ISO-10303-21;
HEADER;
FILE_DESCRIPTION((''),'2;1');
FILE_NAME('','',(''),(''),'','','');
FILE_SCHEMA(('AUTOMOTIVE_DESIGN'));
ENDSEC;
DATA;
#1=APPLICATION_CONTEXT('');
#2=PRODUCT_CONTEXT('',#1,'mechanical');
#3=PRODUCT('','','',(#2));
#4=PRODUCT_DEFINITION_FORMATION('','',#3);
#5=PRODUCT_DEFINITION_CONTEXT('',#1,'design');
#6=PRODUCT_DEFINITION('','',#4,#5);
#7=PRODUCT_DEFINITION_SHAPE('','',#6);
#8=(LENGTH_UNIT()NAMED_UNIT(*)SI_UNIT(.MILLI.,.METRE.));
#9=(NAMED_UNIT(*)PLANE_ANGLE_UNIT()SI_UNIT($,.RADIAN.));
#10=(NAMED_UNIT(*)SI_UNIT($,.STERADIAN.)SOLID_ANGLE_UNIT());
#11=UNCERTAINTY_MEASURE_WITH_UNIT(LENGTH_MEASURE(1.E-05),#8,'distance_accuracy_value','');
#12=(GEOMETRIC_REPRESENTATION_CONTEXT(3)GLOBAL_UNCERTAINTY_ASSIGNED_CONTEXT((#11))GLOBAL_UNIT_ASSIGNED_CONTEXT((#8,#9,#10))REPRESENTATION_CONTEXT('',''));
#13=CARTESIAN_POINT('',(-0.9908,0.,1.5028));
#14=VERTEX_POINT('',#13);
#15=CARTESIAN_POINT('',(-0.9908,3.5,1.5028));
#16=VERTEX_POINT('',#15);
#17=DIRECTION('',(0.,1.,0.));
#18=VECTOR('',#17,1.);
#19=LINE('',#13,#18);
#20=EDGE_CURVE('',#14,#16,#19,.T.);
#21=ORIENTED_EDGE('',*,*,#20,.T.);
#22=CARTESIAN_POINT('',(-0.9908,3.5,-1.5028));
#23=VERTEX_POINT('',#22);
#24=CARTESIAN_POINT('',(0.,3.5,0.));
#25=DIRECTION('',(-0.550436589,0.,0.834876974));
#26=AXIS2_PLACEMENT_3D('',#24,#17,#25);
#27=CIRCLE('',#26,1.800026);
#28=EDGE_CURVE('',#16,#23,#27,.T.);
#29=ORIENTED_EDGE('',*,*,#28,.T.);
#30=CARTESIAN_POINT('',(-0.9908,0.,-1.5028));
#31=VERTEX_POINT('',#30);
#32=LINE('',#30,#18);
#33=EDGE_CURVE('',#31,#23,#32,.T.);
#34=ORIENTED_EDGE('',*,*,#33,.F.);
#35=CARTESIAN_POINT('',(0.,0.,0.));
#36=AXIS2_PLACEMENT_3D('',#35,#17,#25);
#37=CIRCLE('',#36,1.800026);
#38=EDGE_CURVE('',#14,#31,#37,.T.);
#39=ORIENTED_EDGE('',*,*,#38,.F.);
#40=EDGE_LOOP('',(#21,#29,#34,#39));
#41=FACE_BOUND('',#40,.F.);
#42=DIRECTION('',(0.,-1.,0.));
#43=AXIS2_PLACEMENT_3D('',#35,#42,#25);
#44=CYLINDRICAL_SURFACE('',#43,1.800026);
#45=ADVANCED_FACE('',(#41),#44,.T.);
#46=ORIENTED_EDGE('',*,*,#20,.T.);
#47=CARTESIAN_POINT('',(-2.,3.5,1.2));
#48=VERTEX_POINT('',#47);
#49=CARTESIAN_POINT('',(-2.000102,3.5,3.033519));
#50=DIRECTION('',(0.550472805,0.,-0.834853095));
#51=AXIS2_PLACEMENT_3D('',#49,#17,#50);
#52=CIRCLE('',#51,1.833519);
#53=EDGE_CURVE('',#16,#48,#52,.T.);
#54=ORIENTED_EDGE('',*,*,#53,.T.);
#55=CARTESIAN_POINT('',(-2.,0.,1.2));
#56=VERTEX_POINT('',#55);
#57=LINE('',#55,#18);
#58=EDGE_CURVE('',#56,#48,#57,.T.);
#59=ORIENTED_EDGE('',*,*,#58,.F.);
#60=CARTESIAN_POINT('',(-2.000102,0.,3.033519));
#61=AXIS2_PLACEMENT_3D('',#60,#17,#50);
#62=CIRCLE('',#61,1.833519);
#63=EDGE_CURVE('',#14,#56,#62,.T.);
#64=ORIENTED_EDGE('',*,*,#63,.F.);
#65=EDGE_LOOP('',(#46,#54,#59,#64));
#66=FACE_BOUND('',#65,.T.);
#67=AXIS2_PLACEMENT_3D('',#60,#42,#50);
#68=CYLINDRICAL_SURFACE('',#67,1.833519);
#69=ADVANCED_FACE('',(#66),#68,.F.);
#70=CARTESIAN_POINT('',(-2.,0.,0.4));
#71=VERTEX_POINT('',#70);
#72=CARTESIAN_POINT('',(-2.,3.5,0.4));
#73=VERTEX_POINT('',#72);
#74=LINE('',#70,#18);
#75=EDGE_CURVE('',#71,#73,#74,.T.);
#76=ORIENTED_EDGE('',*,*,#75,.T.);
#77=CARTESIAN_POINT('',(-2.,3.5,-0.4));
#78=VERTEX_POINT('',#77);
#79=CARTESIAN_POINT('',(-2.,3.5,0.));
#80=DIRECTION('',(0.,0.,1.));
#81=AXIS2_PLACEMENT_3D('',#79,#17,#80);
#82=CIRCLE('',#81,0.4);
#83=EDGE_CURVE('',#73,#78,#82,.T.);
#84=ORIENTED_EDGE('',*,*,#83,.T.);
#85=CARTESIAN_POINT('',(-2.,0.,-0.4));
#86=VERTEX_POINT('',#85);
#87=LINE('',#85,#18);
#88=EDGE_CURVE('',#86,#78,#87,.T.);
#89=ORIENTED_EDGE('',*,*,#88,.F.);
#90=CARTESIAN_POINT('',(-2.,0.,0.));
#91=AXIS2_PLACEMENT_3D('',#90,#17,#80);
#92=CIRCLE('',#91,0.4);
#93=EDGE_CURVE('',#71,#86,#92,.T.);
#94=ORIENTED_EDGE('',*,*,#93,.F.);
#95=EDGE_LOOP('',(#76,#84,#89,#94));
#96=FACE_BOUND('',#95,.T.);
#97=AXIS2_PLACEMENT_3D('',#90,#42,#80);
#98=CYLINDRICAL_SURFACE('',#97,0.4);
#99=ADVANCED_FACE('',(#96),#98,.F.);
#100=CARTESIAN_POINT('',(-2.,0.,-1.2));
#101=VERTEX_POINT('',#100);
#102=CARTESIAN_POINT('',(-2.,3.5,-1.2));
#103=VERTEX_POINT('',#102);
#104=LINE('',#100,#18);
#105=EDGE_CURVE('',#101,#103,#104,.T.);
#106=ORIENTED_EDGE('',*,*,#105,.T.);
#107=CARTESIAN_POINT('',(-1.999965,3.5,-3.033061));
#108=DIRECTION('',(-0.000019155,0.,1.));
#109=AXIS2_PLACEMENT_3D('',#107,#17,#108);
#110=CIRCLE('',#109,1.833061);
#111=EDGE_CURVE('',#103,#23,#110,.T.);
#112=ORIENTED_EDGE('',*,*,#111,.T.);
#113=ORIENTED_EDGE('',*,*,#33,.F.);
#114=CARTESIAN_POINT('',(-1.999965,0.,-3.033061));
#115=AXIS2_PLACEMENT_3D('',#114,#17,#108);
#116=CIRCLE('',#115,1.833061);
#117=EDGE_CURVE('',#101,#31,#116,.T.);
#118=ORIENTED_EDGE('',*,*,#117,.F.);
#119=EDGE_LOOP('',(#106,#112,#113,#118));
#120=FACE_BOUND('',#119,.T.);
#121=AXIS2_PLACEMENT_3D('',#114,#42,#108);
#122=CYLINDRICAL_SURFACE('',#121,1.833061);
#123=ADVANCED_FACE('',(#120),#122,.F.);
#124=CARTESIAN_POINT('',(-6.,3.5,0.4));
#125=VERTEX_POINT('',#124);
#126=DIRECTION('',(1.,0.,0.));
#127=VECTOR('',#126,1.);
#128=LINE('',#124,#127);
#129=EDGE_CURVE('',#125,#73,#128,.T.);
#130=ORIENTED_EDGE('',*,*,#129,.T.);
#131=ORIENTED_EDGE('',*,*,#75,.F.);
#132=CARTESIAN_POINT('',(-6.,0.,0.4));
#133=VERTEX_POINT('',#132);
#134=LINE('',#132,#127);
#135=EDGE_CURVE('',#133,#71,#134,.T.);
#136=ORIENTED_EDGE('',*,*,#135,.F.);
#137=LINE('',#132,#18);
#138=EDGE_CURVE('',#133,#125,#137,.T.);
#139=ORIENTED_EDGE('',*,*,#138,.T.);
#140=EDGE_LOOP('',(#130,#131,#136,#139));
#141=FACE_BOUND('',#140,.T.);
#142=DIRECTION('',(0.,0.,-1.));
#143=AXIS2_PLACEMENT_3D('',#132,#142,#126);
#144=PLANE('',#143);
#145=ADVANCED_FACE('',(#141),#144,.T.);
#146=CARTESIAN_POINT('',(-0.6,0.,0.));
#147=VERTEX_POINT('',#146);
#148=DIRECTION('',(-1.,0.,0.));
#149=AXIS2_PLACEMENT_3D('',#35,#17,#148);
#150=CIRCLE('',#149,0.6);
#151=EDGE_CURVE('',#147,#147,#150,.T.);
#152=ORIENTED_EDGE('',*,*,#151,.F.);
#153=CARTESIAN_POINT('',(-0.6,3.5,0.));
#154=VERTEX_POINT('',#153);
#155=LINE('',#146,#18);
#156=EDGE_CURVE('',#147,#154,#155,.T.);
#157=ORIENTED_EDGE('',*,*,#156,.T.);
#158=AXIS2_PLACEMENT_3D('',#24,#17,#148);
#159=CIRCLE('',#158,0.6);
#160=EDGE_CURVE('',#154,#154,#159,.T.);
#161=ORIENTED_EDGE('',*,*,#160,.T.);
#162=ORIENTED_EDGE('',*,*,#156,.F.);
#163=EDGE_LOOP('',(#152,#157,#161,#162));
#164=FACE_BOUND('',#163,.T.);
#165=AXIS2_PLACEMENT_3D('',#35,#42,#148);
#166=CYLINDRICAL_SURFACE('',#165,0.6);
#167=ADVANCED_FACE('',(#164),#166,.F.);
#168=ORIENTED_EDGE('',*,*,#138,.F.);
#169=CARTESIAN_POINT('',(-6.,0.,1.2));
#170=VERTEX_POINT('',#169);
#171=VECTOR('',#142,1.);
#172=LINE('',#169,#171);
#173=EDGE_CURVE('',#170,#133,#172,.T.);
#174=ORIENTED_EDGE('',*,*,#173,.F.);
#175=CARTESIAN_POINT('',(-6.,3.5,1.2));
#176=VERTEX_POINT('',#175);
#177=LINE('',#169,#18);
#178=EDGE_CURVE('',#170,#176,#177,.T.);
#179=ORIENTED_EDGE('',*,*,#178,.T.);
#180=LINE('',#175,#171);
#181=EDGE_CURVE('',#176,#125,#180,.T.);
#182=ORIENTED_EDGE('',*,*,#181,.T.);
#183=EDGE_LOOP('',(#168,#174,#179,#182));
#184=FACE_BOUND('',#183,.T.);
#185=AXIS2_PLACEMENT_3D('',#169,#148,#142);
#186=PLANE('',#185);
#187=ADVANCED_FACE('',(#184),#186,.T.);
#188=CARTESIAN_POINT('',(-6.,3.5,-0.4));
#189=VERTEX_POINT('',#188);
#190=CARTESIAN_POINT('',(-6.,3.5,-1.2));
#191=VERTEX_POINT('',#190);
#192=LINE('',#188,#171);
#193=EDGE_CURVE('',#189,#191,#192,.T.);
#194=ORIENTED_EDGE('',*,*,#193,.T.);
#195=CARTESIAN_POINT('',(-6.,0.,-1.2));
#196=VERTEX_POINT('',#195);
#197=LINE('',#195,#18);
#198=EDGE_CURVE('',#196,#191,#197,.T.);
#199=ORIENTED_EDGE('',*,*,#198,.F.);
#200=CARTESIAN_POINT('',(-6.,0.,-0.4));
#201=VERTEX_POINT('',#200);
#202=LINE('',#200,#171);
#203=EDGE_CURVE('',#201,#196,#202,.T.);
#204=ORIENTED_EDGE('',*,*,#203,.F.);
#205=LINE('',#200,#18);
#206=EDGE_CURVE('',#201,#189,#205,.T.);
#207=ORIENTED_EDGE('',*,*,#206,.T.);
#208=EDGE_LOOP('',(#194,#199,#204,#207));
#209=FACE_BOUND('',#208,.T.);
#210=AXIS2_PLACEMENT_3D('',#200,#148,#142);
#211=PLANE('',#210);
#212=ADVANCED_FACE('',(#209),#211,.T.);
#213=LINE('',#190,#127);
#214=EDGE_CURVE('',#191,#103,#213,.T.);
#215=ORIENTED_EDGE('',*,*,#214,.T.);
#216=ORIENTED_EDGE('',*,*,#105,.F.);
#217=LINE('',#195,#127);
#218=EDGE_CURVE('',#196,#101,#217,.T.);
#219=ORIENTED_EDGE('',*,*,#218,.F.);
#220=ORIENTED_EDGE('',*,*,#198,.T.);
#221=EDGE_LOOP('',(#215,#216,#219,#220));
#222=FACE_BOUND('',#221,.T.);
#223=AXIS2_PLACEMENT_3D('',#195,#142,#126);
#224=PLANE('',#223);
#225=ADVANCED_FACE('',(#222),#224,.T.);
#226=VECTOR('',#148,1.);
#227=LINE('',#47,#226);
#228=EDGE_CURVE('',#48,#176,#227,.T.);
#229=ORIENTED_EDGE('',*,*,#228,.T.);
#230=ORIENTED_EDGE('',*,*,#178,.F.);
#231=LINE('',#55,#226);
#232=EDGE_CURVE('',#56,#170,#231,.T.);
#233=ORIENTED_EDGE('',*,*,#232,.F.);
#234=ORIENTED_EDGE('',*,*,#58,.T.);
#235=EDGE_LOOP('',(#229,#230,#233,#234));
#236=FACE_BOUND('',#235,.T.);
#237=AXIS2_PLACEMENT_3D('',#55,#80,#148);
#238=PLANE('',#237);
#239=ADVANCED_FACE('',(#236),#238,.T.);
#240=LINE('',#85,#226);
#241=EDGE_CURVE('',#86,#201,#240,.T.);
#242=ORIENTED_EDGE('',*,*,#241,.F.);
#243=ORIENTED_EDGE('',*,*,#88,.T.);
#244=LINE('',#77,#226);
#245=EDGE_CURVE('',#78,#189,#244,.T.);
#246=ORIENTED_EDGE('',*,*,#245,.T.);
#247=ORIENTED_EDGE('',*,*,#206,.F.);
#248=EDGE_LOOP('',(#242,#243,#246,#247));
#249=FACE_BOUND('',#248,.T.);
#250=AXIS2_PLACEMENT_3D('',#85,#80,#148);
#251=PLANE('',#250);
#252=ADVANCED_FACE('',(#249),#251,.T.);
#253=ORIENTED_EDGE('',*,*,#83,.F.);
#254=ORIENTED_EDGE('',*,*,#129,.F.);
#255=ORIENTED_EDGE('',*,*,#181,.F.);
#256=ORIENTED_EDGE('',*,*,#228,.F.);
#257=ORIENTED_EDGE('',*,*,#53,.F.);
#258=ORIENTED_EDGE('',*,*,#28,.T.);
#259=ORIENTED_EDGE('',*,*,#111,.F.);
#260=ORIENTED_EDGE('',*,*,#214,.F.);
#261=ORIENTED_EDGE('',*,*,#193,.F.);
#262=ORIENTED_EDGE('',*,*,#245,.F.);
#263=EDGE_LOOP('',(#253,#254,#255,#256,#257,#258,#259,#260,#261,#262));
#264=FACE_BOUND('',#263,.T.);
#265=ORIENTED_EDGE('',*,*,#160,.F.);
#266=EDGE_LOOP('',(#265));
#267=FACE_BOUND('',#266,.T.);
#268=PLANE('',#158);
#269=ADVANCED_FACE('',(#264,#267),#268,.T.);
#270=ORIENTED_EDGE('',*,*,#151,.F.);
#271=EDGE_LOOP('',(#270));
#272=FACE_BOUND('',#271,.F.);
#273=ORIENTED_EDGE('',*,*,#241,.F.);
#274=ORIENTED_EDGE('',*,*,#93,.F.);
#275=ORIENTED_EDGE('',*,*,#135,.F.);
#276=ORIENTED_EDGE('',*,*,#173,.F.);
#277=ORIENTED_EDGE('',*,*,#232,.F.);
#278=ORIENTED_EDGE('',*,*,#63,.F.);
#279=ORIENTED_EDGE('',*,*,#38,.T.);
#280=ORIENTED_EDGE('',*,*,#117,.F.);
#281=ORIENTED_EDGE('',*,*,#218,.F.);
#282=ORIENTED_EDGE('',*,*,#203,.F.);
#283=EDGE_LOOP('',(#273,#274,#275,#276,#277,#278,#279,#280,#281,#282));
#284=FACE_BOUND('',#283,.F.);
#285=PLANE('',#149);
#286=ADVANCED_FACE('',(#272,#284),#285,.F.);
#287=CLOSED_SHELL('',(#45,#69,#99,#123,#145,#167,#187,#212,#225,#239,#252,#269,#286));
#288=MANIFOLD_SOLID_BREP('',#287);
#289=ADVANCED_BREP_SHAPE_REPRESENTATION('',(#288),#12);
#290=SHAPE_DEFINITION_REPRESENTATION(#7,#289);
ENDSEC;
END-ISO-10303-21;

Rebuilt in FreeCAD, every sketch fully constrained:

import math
import FreeCAD as App
import Part
import Sketcher
from FreeCAD import Vector
Q = App.Units.Quantity

doc = App.newDocument("Part")
body = doc.addObject("PartDesign::Body", "Body")

# Sketch on XZ plane
sketch1 = body.newObject("Sketcher::SketchObject", "Sketch")
sketch1.AttachmentSupport = (doc.getObject("XZ_Plane"), [""])
sketch1.MapMode = "FlatFace"
sketch1.addGeometry([
    Part.ArcOfCircle(Part.Circle(Vector(-2, 3.03, 0), Vector(0, 0, 1), 1.83), math.radians(-90), math.radians(-57)),  # 0
    Part.ArcOfCircle(Part.Circle(Vector(0, 0, 0), Vector(0, 0, 1), 1.8), math.radians(-123), math.radians(123)),  # 1
    Part.ArcOfCircle(Part.Circle(Vector(-2, -3.03, 0), Vector(0, 0, 1), 1.83), math.radians(57), math.radians(90)),  # 2
    Part.LineSegment(Vector(-2, -1.2, 0), Vector(-6, -1.2, 0)),  # 3
    Part.LineSegment(Vector(-6, -1.2, 0), Vector(-6, -0.4, 0)),  # 4
    Part.LineSegment(Vector(-6, -0.4, 0), Vector(-2, -0.4, 0)),  # 5
    Part.ArcOfCircle(Part.Circle(Vector(-2, 0, 0), Vector(0, 0, 1), 0.4), math.radians(-90), math.radians(90)),  # 6
    Part.LineSegment(Vector(-2, 0.4, 0), Vector(-6, 0.4, 0)),  # 7
    Part.LineSegment(Vector(-6, 0.4, 0), Vector(-6, 1.2, 0)),  # 8
    Part.LineSegment(Vector(-6, 1.2, 0), Vector(-2, 1.2, 0)),  # 9
    Part.Circle(Vector(0, 0, 0), Vector(0, 0, 1), 0.6),  # 10
], False)
sketch1.addConstraint([
    Sketcher.Constraint("Tangent", 0, 2, 1, 2),
    Sketcher.Constraint("Tangent", 1, 1, 2, 1),
    Sketcher.Constraint("Tangent", 2, 2, 3, 1),
    Sketcher.Constraint("Coincident", 3, 2, 4, 1),
    Sketcher.Constraint("Coincident", 4, 2, 5, 1),
    Sketcher.Constraint("Tangent", 5, 2, 6, 1),
    Sketcher.Constraint("Tangent", 6, 2, 7, 1),
    Sketcher.Constraint("Coincident", 7, 2, 8, 1),
    Sketcher.Constraint("Coincident", 8, 2, 9, 1),
    Sketcher.Constraint("Tangent", 9, 2, 0, 1),
    Sketcher.Constraint("Horizontal", 3),
    Sketcher.Constraint("Vertical", 4),
    Sketcher.Constraint("Horizontal", 5),
    Sketcher.Constraint("Horizontal", 7),
    Sketcher.Constraint("Vertical", 8),
    Sketcher.Constraint("Horizontal", 9),
    Sketcher.Constraint("Coincident", 1, 3, -1, 1),
    Sketcher.Constraint("Coincident", 10, 3, -1, 1),
    Sketcher.Constraint("Equal", 0, 2),
    Sketcher.Constraint("Symmetric", 4, 2, 7, 2, -1),
    Sketcher.Constraint("Vertical", 0, 3, 2, 3),
    Sketcher.Constraint("Vertical", 2, 3, 6, 3),
    Sketcher.Constraint("Diameter", 10, Q("1.2 mm")),
    Sketcher.Constraint("Radius", 6, Q("0.4 mm")),
    Sketcher.Constraint("DistanceY", 4, 1, 4, 2, Q("0.8 mm")),
    Sketcher.Constraint("DistanceX", 0, 3, -1, 1, Q("2 mm")),
    Sketcher.Constraint("DistanceX", 3, 2, -1, 1, Q("6 mm")),
    Sketcher.Constraint("Radius", 1, Q("1.8 mm")),
])
pad1 = body.newObject("PartDesign::Pad", "Pad")
pad1.Profile = sketch1
pad1.Length = 3.5
pad1.Reversed = True

doc.recompute()
